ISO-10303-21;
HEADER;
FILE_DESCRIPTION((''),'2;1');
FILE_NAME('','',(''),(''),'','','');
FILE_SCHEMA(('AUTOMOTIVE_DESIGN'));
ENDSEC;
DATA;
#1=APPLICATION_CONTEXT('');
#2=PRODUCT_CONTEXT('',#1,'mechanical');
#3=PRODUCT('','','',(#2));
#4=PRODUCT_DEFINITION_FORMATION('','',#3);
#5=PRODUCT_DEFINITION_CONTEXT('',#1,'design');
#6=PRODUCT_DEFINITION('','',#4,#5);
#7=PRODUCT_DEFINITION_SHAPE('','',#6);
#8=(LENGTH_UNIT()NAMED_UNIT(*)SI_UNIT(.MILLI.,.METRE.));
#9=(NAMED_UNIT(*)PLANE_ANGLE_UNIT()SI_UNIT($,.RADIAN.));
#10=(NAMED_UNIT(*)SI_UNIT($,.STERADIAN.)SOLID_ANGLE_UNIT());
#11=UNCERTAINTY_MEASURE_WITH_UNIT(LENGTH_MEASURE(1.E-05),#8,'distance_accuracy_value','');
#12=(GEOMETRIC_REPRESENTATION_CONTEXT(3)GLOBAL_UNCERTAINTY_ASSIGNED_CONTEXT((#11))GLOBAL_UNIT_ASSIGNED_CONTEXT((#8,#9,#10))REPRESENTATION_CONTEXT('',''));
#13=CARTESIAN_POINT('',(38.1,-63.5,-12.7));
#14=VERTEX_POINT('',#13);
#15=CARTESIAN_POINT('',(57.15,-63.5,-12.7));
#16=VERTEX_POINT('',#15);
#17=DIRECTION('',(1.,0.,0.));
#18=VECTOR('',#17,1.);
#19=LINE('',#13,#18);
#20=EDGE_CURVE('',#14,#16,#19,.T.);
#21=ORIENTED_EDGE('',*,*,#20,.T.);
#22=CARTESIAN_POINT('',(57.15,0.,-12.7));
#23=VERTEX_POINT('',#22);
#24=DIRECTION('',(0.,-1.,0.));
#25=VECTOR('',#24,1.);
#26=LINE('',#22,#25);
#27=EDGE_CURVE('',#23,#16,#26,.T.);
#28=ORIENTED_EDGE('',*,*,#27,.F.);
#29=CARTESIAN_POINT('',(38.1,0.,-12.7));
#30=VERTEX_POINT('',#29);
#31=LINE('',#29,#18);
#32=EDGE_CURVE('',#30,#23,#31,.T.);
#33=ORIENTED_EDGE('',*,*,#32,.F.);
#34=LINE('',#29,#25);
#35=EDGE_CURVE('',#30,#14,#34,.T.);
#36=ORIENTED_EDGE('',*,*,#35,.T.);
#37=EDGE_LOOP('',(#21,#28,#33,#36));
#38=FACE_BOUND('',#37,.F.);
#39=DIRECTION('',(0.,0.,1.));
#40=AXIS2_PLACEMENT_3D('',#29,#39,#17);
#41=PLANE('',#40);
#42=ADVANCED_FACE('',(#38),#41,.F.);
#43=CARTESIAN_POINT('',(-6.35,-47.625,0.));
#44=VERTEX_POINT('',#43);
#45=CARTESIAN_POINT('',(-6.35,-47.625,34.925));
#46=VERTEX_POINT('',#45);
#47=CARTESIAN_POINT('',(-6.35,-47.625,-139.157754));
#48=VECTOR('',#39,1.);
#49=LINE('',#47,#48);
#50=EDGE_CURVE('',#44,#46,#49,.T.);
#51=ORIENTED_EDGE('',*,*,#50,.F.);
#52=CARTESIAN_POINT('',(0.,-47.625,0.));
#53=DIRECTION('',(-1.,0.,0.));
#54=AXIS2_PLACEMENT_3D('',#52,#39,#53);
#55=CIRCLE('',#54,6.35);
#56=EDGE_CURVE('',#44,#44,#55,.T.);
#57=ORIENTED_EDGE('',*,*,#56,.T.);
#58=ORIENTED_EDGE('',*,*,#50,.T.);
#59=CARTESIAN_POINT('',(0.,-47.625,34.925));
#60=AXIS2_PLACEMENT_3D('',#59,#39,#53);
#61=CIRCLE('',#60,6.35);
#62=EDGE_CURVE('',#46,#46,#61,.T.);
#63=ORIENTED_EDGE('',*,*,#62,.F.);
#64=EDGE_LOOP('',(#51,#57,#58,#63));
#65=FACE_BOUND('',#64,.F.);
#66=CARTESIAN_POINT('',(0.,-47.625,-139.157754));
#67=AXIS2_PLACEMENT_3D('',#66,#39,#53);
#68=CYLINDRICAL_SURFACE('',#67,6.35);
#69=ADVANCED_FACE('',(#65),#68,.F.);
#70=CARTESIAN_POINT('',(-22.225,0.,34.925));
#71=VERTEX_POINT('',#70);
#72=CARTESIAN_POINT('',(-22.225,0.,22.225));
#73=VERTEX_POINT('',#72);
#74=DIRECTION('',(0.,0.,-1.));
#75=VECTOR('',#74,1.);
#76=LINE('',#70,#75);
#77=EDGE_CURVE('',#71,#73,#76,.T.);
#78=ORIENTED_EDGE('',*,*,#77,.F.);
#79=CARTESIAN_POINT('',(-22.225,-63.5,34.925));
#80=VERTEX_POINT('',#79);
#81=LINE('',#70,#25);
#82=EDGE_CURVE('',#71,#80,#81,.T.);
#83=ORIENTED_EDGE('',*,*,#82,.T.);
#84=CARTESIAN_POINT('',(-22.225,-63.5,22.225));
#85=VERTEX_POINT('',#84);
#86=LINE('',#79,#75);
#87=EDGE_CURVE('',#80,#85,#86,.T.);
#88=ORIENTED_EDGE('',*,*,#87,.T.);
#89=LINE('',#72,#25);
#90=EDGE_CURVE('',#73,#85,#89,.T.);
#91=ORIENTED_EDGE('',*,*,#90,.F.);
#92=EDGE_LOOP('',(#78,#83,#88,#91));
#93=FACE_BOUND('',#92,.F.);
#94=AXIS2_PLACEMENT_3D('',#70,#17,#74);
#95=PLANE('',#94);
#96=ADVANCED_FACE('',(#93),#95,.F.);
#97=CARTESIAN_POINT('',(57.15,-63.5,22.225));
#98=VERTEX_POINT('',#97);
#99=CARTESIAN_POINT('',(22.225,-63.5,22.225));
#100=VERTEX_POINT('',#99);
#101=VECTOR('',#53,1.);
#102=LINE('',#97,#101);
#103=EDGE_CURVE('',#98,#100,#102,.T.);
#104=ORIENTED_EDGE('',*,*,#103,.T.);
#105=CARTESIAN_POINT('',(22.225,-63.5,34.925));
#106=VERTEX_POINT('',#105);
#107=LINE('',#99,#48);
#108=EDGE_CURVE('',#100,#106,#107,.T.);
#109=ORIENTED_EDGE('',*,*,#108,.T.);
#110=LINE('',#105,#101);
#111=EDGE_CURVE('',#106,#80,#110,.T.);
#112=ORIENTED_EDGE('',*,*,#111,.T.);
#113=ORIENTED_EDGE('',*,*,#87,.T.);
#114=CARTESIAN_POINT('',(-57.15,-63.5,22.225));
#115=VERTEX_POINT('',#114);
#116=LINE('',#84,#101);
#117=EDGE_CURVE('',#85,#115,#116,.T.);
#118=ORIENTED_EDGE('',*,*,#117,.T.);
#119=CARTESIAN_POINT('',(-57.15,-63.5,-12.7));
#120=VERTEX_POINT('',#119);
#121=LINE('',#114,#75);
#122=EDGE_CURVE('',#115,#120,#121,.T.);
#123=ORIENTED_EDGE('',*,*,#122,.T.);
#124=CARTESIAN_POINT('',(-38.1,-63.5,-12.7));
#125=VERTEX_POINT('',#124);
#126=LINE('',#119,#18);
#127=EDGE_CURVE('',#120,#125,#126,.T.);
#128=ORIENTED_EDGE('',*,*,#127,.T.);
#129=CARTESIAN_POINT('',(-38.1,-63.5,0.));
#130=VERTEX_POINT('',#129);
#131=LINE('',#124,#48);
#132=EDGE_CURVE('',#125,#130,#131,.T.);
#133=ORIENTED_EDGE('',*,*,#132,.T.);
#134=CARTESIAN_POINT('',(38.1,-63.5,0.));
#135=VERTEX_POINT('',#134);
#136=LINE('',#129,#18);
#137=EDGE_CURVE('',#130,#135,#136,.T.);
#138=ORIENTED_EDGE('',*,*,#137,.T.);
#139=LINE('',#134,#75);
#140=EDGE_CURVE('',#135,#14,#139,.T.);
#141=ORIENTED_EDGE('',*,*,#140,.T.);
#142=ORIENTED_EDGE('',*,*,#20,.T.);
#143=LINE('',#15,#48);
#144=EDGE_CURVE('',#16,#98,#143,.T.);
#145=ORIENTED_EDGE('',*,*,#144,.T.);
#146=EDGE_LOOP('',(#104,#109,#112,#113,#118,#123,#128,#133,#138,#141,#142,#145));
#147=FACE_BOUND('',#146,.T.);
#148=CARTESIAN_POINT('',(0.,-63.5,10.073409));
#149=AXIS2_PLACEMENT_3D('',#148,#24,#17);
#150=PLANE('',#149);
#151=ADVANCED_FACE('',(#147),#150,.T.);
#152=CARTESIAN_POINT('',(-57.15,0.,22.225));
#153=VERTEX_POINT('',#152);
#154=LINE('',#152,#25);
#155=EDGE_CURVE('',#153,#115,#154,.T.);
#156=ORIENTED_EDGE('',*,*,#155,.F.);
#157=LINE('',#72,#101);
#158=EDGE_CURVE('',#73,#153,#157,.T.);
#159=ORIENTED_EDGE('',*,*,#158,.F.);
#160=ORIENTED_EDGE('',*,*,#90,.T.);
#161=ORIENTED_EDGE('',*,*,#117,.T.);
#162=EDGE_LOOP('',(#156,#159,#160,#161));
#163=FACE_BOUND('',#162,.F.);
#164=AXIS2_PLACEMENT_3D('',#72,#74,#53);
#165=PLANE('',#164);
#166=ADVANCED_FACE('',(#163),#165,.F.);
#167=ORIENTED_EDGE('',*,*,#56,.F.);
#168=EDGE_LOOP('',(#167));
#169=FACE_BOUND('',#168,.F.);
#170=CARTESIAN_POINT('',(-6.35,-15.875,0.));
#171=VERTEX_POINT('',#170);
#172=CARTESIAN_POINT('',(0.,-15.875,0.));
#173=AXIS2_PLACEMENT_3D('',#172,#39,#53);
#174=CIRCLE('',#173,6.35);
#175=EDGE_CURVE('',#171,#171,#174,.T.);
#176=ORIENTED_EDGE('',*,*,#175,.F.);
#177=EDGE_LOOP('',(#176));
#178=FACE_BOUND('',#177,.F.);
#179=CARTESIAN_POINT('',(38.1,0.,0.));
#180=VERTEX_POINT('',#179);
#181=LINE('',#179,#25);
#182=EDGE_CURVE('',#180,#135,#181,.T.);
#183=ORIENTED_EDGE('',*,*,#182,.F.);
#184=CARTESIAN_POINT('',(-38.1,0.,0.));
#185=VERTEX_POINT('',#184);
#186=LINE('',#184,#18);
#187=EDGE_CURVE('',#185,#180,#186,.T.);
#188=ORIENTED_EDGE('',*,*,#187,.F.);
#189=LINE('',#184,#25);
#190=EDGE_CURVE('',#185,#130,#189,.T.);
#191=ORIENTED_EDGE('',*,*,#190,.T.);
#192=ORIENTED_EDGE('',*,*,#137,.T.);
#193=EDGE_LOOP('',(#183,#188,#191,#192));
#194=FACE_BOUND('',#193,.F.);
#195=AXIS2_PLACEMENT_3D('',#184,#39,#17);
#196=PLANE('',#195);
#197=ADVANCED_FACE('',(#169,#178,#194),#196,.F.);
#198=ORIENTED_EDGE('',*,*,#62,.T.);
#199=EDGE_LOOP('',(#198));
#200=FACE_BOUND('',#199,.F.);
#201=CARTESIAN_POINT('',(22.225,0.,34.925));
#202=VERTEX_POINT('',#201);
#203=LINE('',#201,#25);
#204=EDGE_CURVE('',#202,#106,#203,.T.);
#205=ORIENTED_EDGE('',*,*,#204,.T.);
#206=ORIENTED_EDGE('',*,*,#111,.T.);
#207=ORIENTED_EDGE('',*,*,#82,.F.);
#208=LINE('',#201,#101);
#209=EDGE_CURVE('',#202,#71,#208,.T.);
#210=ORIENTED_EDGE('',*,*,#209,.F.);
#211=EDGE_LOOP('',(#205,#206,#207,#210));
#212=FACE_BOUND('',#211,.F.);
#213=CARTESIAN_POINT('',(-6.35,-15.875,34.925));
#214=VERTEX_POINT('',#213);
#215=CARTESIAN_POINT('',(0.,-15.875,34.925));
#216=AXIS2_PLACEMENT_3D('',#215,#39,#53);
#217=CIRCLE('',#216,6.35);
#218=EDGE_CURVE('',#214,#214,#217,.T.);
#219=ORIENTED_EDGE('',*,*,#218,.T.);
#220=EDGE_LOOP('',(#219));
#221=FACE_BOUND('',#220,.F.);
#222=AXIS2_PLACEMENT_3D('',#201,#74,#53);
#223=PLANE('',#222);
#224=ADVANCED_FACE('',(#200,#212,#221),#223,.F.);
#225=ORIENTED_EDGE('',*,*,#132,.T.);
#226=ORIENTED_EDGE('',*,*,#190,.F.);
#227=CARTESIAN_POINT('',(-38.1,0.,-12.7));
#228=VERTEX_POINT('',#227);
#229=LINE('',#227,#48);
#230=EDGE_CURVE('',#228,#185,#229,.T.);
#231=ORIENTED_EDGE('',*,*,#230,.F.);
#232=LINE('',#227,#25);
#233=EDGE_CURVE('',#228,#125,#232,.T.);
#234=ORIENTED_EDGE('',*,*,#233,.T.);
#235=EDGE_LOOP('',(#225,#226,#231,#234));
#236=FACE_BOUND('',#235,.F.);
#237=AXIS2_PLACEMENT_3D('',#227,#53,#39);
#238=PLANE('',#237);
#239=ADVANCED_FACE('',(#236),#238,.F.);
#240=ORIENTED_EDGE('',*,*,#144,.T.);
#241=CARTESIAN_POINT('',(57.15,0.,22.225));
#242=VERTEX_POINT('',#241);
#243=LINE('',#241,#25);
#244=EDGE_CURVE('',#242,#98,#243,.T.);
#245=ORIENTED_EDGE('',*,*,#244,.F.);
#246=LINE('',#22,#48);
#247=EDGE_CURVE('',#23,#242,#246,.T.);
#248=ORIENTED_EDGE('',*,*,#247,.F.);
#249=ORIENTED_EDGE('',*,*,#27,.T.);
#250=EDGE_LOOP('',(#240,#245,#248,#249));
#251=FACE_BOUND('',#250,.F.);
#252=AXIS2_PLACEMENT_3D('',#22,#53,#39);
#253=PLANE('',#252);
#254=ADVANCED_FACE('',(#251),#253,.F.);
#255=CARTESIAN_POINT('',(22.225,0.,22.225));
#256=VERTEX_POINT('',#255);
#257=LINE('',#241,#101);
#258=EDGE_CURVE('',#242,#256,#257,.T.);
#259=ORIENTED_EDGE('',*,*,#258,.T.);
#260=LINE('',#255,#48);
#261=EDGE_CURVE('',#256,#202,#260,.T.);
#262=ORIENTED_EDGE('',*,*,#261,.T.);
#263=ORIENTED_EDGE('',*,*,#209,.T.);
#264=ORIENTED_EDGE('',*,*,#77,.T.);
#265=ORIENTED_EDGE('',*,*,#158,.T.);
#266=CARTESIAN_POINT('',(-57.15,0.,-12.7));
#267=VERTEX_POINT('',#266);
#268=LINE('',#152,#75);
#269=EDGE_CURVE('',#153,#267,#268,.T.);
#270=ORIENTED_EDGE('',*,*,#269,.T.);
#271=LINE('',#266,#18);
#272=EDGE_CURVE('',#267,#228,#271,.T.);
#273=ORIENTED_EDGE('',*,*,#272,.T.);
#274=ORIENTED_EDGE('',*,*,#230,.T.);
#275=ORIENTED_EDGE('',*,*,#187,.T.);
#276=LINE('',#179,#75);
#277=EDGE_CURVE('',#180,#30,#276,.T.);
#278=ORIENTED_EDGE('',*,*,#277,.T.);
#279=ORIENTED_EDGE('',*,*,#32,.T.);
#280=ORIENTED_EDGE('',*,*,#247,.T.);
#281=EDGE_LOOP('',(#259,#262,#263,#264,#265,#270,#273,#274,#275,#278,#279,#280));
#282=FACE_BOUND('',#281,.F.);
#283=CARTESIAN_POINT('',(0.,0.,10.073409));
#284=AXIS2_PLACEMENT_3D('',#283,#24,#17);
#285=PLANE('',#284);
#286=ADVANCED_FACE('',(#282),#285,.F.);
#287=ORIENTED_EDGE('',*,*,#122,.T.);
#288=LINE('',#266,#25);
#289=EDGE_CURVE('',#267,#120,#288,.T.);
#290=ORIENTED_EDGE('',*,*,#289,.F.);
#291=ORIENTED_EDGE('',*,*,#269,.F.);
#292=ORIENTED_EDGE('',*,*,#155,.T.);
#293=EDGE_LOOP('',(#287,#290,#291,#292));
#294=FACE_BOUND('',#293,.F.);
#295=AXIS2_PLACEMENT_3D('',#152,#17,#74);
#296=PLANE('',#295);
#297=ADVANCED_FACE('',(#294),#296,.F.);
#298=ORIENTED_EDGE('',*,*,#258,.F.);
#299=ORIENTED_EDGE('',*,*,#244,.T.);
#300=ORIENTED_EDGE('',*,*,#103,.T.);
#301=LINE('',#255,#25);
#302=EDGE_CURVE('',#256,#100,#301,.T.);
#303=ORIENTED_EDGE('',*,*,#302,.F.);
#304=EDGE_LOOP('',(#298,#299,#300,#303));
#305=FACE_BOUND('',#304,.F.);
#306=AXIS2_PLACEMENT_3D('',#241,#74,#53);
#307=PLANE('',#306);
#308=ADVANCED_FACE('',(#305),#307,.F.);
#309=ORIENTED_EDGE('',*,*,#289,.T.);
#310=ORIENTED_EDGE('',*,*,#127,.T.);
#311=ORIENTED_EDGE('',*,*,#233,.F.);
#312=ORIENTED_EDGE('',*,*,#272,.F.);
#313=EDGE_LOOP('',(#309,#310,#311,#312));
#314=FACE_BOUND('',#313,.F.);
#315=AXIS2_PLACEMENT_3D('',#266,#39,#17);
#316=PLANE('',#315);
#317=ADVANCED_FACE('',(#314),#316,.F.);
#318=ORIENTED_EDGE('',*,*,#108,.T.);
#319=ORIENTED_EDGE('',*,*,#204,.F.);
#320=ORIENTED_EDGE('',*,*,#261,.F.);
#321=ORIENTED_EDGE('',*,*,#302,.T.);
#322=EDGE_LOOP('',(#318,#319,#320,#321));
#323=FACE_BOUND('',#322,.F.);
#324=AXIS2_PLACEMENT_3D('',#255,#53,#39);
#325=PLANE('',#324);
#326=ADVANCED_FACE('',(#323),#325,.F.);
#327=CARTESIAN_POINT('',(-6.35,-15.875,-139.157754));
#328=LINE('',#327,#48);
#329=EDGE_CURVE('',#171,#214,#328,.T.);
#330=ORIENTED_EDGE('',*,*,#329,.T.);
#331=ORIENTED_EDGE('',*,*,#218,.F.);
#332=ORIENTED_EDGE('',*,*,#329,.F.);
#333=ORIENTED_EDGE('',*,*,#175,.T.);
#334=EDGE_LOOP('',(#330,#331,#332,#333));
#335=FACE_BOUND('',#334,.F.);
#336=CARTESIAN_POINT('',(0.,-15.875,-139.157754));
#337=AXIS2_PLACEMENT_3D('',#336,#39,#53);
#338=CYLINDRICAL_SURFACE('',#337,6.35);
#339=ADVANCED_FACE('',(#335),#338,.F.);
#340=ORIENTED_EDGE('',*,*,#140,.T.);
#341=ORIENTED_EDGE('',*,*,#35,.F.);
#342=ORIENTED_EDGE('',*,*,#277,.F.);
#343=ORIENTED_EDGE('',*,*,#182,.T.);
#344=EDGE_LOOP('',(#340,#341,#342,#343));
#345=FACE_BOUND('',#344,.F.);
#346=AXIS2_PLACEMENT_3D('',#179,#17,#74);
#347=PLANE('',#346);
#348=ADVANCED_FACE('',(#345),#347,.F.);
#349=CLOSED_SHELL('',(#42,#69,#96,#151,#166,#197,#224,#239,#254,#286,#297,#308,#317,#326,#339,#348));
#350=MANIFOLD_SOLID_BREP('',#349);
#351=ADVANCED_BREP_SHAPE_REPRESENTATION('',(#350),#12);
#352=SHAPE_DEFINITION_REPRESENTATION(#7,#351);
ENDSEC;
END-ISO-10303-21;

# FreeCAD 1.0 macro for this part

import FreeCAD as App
import Part
import Sketcher
Q = App.Units.Quantity

doc = App.newDocument("Part")
params = doc.addObject("Spreadsheet::Sheet", "Params")
for row, (alias, value) in enumerate([
    ("sketch1_width", "3 in"),
    ("sketch1_height", "0.5 in"),
    ("sketch1_width2", "0.75 in"),
    ("sketch1_width3", "1.75 in"),
    ("pad1_length", "2.5 in"),
    ("sketch2_diameter", "0.5 in"),
    ("hole_diameter", "0.5 in"),
    ("sketch3_diameter", "0.5 in"),
    ("hole2_diameter", "0.5 in"),
], start=1):
    params.set(f"A{row}", alias)
    params.set(f"B{row}", "=" + value)
    params.setAlias(f"B{row}", alias)

body = doc.addObject("PartDesign::Body", "Body")

sketch1 = doc.addObject("Sketcher::SketchObject", "Sketch")
body.addObject(sketch1)
sketch1.AttachmentSupport = (doc.XZ_Plane, [""])
sketch1.MapMode = "FlatFace"
sketch1.addGeometry([
    Part.LineSegment(App.Vector(-38, -13, 0), App.Vector(-38, 0, 0)),
    Part.LineSegment(App.Vector(-38, 0, 0), App.Vector(38, 0, 0)),
    Part.LineSegment(App.Vector(38, 0, 0), App.Vector(38, -13, 0)),
    Part.LineSegment(App.Vector(38, -13, 0), App.Vector(57, -13, 0)),
    Part.LineSegment(App.Vector(57, -13, 0), App.Vector(57, 22, 0)),
    Part.LineSegment(App.Vector(57, 22, 0), App.Vector(22, 22, 0)),
    Part.LineSegment(App.Vector(22, 22, 0), App.Vector(22, 35, 0)),
    Part.LineSegment(App.Vector(22, 35, 0), App.Vector(-22, 35, 0)),
    Part.LineSegment(App.Vector(-22, 35, 0), App.Vector(-22, 22, 0)),
    Part.LineSegment(App.Vector(-22, 22, 0), App.Vector(-57, 22, 0)),
    Part.LineSegment(App.Vector(-57, 22, 0), App.Vector(-57, -13, 0)),
    Part.LineSegment(App.Vector(-57, -13, 0), App.Vector(-38, -13, 0)),
], False)
sketch1.addConstraint([
    Sketcher.Constraint("Coincident", 0, 2, 1, 1),
    Sketcher.Constraint("Coincident", 1, 2, 2, 1),
    Sketcher.Constraint("Coincident", 2, 2, 3, 1),
    Sketcher.Constraint("Coincident", 3, 2, 4, 1),
    Sketcher.Constraint("Coincident", 4, 2, 5, 1),
    Sketcher.Constraint("Coincident", 5, 2, 6, 1),
    Sketcher.Constraint("Coincident", 6, 2, 7, 1),
    Sketcher.Constraint("Coincident", 7, 2, 8, 1),
    Sketcher.Constraint("Coincident", 8, 2, 9, 1),
    Sketcher.Constraint("Coincident", 9, 2, 10, 1),
    Sketcher.Constraint("Coincident", 10, 2, 11, 1),
    Sketcher.Constraint("Coincident", 11, 2, 0, 1),
    Sketcher.Constraint("Vertical", 0),
    Sketcher.Constraint("Horizontal", 1),
    Sketcher.Constraint("Vertical", 2),
    Sketcher.Constraint("Horizontal", 3),
    Sketcher.Constraint("Vertical", 4),
    Sketcher.Constraint("Horizontal", 5),
    Sketcher.Constraint("Vertical", 6),
    Sketcher.Constraint("Horizontal", 7),
    Sketcher.Constraint("Vertical", 8),
    Sketcher.Constraint("Horizontal", 9),
    Sketcher.Constraint("Vertical", 10),
    Sketcher.Constraint("Horizontal", 11),
    Sketcher.Constraint("Symmetric", 0, 2, 1, 2, -1, 1),
    Sketcher.Constraint("Symmetric", 5, 2, 8, 2, -2),
    Sketcher.Constraint("Symmetric", 3, 2, 10, 2, -2),
    Sketcher.Constraint("Equal", 9, 4),
    Sketcher.Constraint("Equal", 2, 6),
    Sketcher.Constraint("DistanceX", 1, 1, 1, 2, Q("3 in")),
    Sketcher.Constraint("DistanceY", 0, 1, 0, 2, Q("0.5 in")),
    Sketcher.Constraint("DistanceX", 3, 1, 3, 2, Q("0.75 in")),
    Sketcher.Constraint("DistanceX", 7, 2, 7, 1, Q("1.75 in")),
])
sketch1.setExpression("Constraints[29]", "Params.sketch1_width")
sketch1.setExpression("Constraints[30]", "Params.sketch1_height")
sketch1.setExpression("Constraints[31]", "Params.sketch1_width2")
sketch1.setExpression("Constraints[32]", "Params.sketch1_width3")
pad1 = doc.addObject("PartDesign::Pad", "Pad")
body.addObject(pad1)
pad1.Profile = sketch1
pad1.setExpression("Length", "Params.pad1_length")

sketch2 = doc.addObject("Sketcher::SketchObject", "Sketch001")
body.addObject(sketch2)
sketch2.AttachmentSupport = (doc.XY_Plane, [""])
sketch2.MapMode = "FlatFace"
sketch2.addGeometry(Part.Circle(App.Vector(0, -48, 0), App.Vector(0, 0, 1), 6), False)
sketch2.addConstraint([
    Sketcher.Constraint("PointOnObject", 0, 3, -2),
    Sketcher.Constraint("Diameter", 0, Q("0.5 in")),
    Sketcher.Constraint("DistanceY", 0, 3, -1, 1, Q("1.875 in")),
])
sketch2.setExpression("Constraints[1]", "Params.sketch2_diameter")
doc.recompute()
hole = doc.addObject("PartDesign::Hole", "Hole")
body.addObject(hole)
hole.Profile = sketch2
hole.ThreadType = "None"
hole.setExpression("Diameter", "Params.hole_diameter")
hole.DepthType = "ThroughAll"
hole.Reversed = True

sketch3 = doc.addObject("Sketcher::SketchObject", "Sketch002")
body.addObject(sketch3)
sketch3.AttachmentSupport = (doc.XY_Plane, [""])
sketch3.MapMode = "FlatFace"
sketch3.addGeometry(Part.Circle(App.Vector(0, -16, 0), App.Vector(0, 0, 1), 6), False)
sketch3.addConstraint([
    Sketcher.Constraint("PointOnObject", 0, 3, -2),
    Sketcher.Constraint("Diameter", 0, Q("0.5 in")),
    Sketcher.Constraint("DistanceY", 0, 3, -1, 1, Q("0.625 in")),
])
sketch3.setExpression("Constraints[1]", "Params.sketch3_diameter")
doc.recompute()
hole2 = doc.addObject("PartDesign::Hole", "Hole001")
body.addObject(hole2)
hole2.Profile = sketch3
hole2.ThreadType = "None"
hole2.setExpression("Diameter", "Params.hole2_diameter")
hole2.DepthType = "ThroughAll"
hole2.Reversed = True

doc.recompute()
